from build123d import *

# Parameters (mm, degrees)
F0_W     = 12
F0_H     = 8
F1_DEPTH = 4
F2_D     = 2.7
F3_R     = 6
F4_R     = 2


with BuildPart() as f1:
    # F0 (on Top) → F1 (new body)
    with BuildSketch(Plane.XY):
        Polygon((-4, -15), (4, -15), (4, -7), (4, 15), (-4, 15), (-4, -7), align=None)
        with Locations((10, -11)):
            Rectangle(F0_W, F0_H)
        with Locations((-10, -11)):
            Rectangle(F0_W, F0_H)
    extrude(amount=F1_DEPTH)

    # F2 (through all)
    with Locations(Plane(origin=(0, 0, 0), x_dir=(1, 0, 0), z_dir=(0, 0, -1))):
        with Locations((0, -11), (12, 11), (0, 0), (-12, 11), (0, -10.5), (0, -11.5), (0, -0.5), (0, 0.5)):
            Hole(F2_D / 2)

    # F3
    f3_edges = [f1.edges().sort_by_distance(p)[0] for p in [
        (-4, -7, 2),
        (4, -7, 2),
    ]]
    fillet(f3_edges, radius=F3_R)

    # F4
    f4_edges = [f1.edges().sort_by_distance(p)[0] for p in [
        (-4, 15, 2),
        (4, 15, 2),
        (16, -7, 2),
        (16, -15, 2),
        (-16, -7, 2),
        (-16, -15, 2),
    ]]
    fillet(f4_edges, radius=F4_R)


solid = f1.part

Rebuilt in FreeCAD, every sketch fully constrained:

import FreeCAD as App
import Part
import Sketcher

V = App.Vector


def edges_at(feature, points):
    """Names of the edges that pass closest to the given points."""
    edges = feature.Shape.Edges
    near = lambda p: min(range(len(edges)), key=lambda i: edges[i].distToShape(Part.Vertex(*p))[0])
    return sorted({f"Edge{near(p) + 1}" for p in points})


def add_polygon(sketch, points):
    """Adds a closed chain of lines whose ends are joined by coincident constraints."""
    first, n = sketch.GeometryCount, len(points)
    for a, b in zip(points, points[1:] + points[:1]):
        sketch.addGeometry(Part.LineSegment(App.Vector(*a, 0), App.Vector(*b, 0)), False)
    for i in range(n):
        sketch.addConstraint(Sketcher.Constraint("Coincident", first + i, 2, first + (i + 1) % n, 1))

doc = App.newDocument("Part")
body = doc.addObject("PartDesign::Body", "Body")

sketch1 = body.newObject("Sketcher::SketchObject", "Sketch")
sketch1.AttachmentSupport = (doc.getObject("XY_Plane"), [""])
sketch1.MapMode = "FlatFace"
add_polygon(sketch1, [(16, -15), (16, -7), (4, -7), (4, 15), (-4, 15), (-4, -7), (-16, -7), (-16, -15)])
sketch1.addConstraint([
    Sketcher.Constraint("Vertical", 0),
    Sketcher.Constraint("Horizontal", 1),
    Sketcher.Constraint("Vertical", 2),
    Sketcher.Constraint("Horizontal", 3),
    Sketcher.Constraint("Vertical", 4),
    Sketcher.Constraint("Horizontal", 5),
    Sketcher.Constraint("Vertical", 6),
    Sketcher.Constraint("Horizontal", 7),
    Sketcher.Constraint("Symmetric", 1, 2, 4, 2, -2),
    Sketcher.Constraint("Equal", 1, 5),
    Sketcher.Constraint("Equal", 3, 0),
    Sketcher.Constraint("DistanceX", 1, 2, 1, 1, 12.0),
    Sketcher.Constraint("DistanceX", 3, 2, 3, 1, 8.0),
    Sketcher.Constraint("DistanceY", 2, 1, 2, 2, 22.0),
    Sketcher.Constraint("DistanceY", 0, 2, -1, 1, 7.0),
])
pad1 = body.newObject("PartDesign::Pad", "Pad")
pad1.Profile = sketch1
pad1.Length = 4

sketch2 = body.newObject("Sketcher::SketchObject", "Sketch001")
sketch2.AttachmentSupport = (doc.getObject("XY_Plane"), [""])
sketch2.MapMode = "FlatFace"
sketch2.addGeometry([
    Part.Circle(V(0, 11, 0), V(0, 0, 1), 1.4),
    Part.Circle(V(12, -11, 0), V(0, 0, 1), 1.4),
    Part.Circle(V(0, 0, 0), V(0, 0, 1), 1.4),
    Part.Circle(V(-12, -11, 0), V(0, 0, 1), 1.4),
    Part.Circle(V(0, 10.5, 0), V(0, 0, 1), 1.4),
    Part.Circle(V(0, 11.5, 0), V(0, 0, 1), 1.4),
    Part.Circle(V(0, 0.5, 0), V(0, 0, 1), 1.4),
    Part.Circle(V(0, -0.5, 0), V(0, 0, 1), 1.4),
], False)
sketch2.addConstraint([
    Sketcher.Constraint("Coincident", 2, 3, -1, 1),
    Sketcher.Constraint("Equal", 0, 1),
    Sketcher.Constraint("Equal", 1, 2),
    Sketcher.Constraint("Equal", 2, 3),
    Sketcher.Constraint("Equal", 3, 4),
    Sketcher.Constraint("Equal", 4, 5),
    Sketcher.Constraint("Equal", 5, 6),
    Sketcher.Constraint("Equal", 6, 7),
    Sketcher.Constraint("Symmetric", 6, 3, 7, 3, -1, 1),
    Sketcher.Constraint("Symmetric", 1, 3, 3, 3, -2),
    Sketcher.Constraint("PointOnObject", 0, 3, -2),
    Sketcher.Constraint("PointOnObject", 4, 3, -2),
    Sketcher.Constraint("PointOnObject", 5, 3, -2),
    Sketcher.Constraint("PointOnObject", 6, 3, -2),
    Sketcher.Constraint("Diameter", 0, 2.7),
    Sketcher.Constraint("DistanceY", -1, 1, 0, 3, 11.0),
    Sketcher.Constraint("DistanceX", -1, 1, 1, 3, 12.0),
    Sketcher.Constraint("DistanceY", 1, 3, -1, 1, 11.0),
    Sketcher.Constraint("DistanceY", 4, 3, 5, 3, 1.0),
    Sketcher.Constraint("DistanceY", 6, 3, 4, 3, 10.0),
    Sketcher.Constraint("DistanceY", 7, 3, 6, 3, 1.0),
])
doc.recompute()
hole = body.newObject("PartDesign::Hole", "Hole")
hole.Profile = sketch2
hole.ThreadType = "None"
hole.Diameter = 2.7
hole.DepthType = "ThroughAll"
hole.Reversed = True
doc.recompute()

fillet = body.newObject("PartDesign::Fillet", "Fillet")
fillet.Base = (hole, edges_at(hole, [(-4, -7, 2), (4, -7, 2)]))
fillet.Radius = 6
doc.recompute()

fillet2 = body.newObject("PartDesign::Fillet", "Fillet001")
fillet2.Base = (fillet, edges_at(fillet, [
    (-4, 15, 2),
    (4, 15, 2),
    (16, -7, 2),
    (16, -15, 2),
    (-16, -7, 2),
    (-16, -15, 2),
]))
fillet2.Radius = 2

doc.recompute()
